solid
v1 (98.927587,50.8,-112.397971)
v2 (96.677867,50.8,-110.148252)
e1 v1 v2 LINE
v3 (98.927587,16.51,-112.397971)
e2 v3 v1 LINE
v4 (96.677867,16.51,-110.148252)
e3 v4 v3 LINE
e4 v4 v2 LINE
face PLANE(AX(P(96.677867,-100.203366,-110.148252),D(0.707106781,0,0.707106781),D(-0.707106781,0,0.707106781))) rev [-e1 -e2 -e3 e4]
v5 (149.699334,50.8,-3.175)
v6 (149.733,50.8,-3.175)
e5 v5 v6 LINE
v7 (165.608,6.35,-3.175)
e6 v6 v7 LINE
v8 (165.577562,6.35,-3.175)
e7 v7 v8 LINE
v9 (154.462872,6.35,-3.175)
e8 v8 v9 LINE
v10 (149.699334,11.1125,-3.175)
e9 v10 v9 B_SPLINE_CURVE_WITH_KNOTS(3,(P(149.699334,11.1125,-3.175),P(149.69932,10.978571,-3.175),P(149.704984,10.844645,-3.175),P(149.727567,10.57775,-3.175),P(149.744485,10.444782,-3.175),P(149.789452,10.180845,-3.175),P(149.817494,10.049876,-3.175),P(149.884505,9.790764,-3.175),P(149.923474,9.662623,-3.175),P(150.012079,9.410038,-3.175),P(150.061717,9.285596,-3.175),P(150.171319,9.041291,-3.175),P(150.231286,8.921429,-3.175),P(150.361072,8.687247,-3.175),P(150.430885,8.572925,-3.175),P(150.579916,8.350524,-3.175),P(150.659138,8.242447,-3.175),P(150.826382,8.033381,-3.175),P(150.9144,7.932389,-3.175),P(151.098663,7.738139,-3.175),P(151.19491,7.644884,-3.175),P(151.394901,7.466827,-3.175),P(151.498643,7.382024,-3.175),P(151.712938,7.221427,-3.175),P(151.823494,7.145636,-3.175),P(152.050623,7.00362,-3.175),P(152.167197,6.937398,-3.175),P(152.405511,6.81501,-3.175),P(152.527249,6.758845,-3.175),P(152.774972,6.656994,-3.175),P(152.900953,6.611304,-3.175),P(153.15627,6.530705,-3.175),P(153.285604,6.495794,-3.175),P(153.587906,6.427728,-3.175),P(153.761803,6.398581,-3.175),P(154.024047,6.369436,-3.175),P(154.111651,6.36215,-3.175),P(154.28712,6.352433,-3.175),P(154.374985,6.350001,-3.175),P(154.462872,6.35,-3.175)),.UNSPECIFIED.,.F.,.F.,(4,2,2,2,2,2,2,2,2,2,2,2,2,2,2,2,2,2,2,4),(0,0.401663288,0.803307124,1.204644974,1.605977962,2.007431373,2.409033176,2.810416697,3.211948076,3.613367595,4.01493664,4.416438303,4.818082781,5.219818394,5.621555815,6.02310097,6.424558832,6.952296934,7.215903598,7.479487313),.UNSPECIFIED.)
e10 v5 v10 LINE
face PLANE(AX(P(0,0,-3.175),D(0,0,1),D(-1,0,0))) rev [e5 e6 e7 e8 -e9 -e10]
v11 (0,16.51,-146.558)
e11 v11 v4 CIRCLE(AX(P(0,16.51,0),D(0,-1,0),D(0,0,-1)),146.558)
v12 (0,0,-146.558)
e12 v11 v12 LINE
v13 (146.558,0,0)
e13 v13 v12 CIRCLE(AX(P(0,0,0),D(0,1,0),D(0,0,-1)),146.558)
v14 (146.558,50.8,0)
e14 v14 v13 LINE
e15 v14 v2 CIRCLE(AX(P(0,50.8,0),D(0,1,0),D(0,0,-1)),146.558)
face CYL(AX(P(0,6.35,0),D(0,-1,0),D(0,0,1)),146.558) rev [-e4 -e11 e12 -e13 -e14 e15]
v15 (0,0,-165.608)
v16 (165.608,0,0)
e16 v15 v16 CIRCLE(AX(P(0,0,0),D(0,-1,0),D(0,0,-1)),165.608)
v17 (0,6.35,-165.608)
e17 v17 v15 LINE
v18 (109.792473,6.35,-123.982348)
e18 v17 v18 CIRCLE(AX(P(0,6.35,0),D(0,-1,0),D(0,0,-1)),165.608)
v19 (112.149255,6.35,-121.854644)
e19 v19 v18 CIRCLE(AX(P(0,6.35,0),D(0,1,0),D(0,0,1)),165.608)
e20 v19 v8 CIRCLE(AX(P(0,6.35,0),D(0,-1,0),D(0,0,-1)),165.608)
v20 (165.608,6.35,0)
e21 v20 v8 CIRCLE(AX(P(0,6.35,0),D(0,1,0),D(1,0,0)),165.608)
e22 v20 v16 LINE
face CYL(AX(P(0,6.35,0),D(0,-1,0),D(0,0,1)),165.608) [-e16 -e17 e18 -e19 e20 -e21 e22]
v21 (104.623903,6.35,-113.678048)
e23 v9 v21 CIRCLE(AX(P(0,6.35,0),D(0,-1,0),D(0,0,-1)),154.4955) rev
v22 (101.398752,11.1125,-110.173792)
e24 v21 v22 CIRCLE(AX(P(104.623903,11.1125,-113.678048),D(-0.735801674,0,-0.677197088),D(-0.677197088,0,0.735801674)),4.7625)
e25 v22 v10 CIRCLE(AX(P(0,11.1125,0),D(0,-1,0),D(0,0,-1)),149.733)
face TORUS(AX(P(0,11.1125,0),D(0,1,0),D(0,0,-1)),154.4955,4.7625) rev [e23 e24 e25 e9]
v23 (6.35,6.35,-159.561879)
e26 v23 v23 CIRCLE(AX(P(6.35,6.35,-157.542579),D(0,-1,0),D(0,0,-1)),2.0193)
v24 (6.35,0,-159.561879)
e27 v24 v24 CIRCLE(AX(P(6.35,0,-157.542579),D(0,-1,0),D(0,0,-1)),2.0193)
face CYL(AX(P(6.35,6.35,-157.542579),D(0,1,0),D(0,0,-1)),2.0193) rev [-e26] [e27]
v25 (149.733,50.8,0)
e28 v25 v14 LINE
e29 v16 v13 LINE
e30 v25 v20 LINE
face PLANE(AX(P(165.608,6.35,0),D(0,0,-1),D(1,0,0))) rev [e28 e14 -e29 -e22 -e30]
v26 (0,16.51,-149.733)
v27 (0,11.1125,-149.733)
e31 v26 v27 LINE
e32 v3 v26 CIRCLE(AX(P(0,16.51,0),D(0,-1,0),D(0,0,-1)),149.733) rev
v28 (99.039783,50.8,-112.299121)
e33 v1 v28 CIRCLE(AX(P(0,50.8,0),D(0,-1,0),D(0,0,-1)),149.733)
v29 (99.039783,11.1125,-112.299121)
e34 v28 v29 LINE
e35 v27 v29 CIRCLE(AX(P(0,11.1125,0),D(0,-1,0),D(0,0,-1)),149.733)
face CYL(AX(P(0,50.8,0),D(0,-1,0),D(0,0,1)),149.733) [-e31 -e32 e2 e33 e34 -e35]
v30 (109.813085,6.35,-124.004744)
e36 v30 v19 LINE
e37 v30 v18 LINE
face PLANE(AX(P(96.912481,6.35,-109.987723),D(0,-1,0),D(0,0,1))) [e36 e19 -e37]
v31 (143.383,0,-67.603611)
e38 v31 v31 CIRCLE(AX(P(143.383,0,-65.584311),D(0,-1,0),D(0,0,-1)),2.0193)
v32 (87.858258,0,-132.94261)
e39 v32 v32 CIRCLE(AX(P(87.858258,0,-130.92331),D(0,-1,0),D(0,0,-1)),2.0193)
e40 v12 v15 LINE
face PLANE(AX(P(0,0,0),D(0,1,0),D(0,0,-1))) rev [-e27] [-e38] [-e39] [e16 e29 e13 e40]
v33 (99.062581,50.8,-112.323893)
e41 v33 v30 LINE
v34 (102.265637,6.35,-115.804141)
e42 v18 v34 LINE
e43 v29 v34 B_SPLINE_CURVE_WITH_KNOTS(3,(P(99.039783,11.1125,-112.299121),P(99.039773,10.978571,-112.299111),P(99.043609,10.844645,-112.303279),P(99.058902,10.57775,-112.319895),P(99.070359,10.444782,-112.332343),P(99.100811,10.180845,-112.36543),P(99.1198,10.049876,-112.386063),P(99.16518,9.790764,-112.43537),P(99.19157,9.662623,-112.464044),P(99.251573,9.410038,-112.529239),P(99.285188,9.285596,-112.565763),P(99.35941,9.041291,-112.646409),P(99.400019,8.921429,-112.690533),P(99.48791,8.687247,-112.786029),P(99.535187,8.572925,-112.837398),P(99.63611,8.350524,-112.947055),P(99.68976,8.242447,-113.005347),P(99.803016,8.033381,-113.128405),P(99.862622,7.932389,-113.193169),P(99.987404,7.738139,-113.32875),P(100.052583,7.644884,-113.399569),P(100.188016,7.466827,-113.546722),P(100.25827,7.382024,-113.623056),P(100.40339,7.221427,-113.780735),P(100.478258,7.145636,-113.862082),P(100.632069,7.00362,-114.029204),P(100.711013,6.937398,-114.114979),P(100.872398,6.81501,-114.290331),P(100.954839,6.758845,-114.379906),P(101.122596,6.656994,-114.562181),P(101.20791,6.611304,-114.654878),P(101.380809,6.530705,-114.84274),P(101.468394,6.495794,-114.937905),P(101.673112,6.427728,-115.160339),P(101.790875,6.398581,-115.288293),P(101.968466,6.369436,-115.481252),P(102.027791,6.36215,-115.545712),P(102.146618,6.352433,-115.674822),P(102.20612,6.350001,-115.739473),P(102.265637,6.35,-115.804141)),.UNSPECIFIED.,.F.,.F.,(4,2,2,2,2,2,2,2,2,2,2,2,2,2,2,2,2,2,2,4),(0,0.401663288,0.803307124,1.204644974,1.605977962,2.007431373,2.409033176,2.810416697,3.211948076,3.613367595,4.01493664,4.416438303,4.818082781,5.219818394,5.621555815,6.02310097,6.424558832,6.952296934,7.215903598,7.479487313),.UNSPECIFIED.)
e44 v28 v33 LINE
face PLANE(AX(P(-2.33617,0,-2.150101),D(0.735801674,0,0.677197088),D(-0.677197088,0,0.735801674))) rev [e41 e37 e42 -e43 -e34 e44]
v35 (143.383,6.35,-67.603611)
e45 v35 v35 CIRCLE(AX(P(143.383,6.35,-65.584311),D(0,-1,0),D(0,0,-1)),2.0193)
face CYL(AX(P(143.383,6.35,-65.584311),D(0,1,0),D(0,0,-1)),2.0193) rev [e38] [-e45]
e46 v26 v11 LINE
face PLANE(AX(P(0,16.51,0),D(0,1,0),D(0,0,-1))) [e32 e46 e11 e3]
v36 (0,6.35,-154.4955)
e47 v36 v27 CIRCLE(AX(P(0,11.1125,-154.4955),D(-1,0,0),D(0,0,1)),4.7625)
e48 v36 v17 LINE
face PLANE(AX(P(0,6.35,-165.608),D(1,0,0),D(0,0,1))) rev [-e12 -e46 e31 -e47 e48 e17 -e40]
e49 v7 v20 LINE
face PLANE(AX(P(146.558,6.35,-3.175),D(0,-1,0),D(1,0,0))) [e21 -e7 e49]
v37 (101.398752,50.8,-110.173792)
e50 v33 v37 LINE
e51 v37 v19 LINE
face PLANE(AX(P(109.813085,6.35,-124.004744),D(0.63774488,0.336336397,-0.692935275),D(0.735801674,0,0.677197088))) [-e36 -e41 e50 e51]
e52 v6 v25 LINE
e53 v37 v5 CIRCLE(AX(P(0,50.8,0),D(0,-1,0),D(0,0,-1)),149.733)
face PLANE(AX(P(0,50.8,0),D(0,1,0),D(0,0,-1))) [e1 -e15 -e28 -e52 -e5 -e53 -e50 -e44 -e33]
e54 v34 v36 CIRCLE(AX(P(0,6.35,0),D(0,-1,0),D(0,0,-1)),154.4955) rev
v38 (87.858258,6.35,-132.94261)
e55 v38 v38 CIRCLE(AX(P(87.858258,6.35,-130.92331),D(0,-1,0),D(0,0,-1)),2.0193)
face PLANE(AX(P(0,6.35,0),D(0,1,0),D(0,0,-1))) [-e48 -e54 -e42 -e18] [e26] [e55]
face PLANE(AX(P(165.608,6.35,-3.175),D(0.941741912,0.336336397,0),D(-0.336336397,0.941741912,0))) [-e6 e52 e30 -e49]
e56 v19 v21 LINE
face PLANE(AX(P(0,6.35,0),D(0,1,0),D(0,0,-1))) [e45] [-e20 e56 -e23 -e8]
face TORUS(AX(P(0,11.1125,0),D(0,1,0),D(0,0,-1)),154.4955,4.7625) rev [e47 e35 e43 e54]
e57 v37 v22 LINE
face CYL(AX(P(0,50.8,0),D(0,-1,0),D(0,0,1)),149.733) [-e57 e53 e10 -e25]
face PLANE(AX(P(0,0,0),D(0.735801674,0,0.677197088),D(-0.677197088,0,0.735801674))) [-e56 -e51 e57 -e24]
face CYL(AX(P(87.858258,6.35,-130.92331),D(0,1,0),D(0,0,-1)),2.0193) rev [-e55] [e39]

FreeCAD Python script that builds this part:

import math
import FreeCAD as App
import Part
import Sketcher
from FreeCAD import Vector
Q = App.Units.Quantity


def edges_at(feature, points):
    """Names of the edges that pass closest to the given points."""
    edges = feature.Shape.Edges
    near = lambda p: min(range(len(edges)), key=lambda i: edges[i].distToShape(Part.Vertex(*p))[0])
    return sorted({f"Edge{near(p) + 1}" for p in points})

doc = App.newDocument("Part")
params = doc.addObject("Spreadsheet::Sheet", "Params")
for row, (alias, value) in enumerate([
    ("sketch1_radius", "5.77 in"),
    ("sketch1_radius2", "6.52 in"),
    ("pad1_length", "0.25 in"),
    ("sketch2_radius", "5.77 in"),
    ("sketch2_radius2", "5.895 in"),
    ("pad2_length", "1.75 in"),
    ("sketch3_radius", "5.77 in"),
    ("sketch3_radius2", "5.895 in"),
    ("pocket1_length", "1.35 in"),
    ("sketch4_diameter", "0.159 in"),
    ("hole_diameter", "0.159 in"),
    ("hole_depth", "0.25 in"),
    ("sketch5_width", "0.75 in"),
    ("sketch5_height", "1.75 in"),
    ("sketch5_width2", "0.125 in"),
    ("pad3_length", "0.125 in"),
    ("fillet_radius", "0.1875 in"),
], start=1):
    params.set(f"A{row}", alias)
    params.set(f"B{row}", "=" + value)
    params.setAlias(f"B{row}", alias)

body = doc.addObject("PartDesign::Body", "Body")

sketch1 = body.newObject("Sketcher::SketchObject", "Sketch")
sketch1.AttachmentSupport = (doc.getObject("XZ_Plane"), [""])
sketch1.MapMode = "FlatFace"
sketch1.addGeometry(Part.LineSegment(Vector(166, 0, 0), Vector(147, 0, 0)), False)
sketch1.addGeometry(Part.ArcOfCircle(Part.Circle(Vector(0, 0, 0), Vector(0, 0, 1), 147), math.radians(0), math.radians(90)), False)
sketch1.addGeometry(Part.LineSegment(Vector(0, 147, 0), Vector(0, 166, 0)), False)
sketch1.addGeometry(Part.ArcOfCircle(Part.Circle(Vector(0, 0, 0), Vector(0, 0, 1), 166), math.radians(0), math.radians(90)), False)
sketch1.addConstraint(Sketcher.Constraint("Coincident", 0, 2, 1, 1))
sketch1.addConstraint(Sketcher.Constraint("Coincident", 1, 2, 2, 1))
sketch1.addConstraint(Sketcher.Constraint("Coincident", 2, 2, 3, 2))
sketch1.addConstraint(Sketcher.Constraint("Coincident", 3, 1, 0, 1))
sketch1.addConstraint(Sketcher.Constraint("Horizontal", 0))
sketch1.addConstraint(Sketcher.Constraint("Vertical", 2))
sketch1.addConstraint(Sketcher.Constraint("Coincident", 1, 3, -1, 1))
sketch1.addConstraint(Sketcher.Constraint("Coincident", 3, 3, -1, 1))
sketch1.addConstraint(Sketcher.Constraint("PointOnObject", 0, 2, -1))
sketch1.addConstraint(Sketcher.Constraint("PointOnObject", 1, 2, -2))
sketch1.addConstraint(Sketcher.Constraint("Radius", 1, Q("5.77 in")))
sketch1.addConstraint(Sketcher.Constraint("Radius", 3, Q("6.52 in")))
sketch1.setExpression("Constraints[10]", "Params.sketch1_radius")
sketch1.setExpression("Constraints[11]", "Params.sketch1_radius2")
pad1 = body.newObject("PartDesign::Pad", "Pad")
pad1.Profile = sketch1
pad1.setExpression("Length", "Params.pad1_length")
pad1.Reversed = True

sketch2 = body.newObject("Sketcher::SketchObject", "Sketch001")
sketch2.AttachmentSupport = (doc.getObject("XZ_Plane"), [""])
sketch2.MapMode = "FlatFace"
sketch2.AttachmentOffset = App.Placement(Vector(0, 0, -0.25 * 25.4), App.Rotation())
sketch2.addGeometry(Part.LineSegment(Vector(149.7, 0, 0), Vector(146.6, 0, 0)), False)
sketch2.addGeometry(Part.ArcOfCircle(Part.Circle(Vector(0, 0, 0), Vector(0, 0, 1), 146.6), math.radians(0), math.radians(90)), False)
sketch2.addGeometry(Part.LineSegment(Vector(0, 146.6, 0), Vector(0, 149.7, 0)), False)
sketch2.addGeometry(Part.ArcOfCircle(Part.Circle(Vector(0, 0, 0), Vector(0, 0, 1), 149.7), math.radians(0), math.radians(90)), False)
sketch2.addConstraint(Sketcher.Constraint("Coincident", 0, 2, 1, 1))
sketch2.addConstraint(Sketcher.Constraint("Coincident", 1, 2, 2, 1))
sketch2.addConstraint(Sketcher.Constraint("Coincident", 2, 2, 3, 2))
sketch2.addConstraint(Sketcher.Constraint("Coincident", 3, 1, 0, 1))
sketch2.addConstraint(Sketcher.Constraint("Horizontal", 0))
sketch2.addConstraint(Sketcher.Constraint("Vertical", 2))
sketch2.addConstraint(Sketcher.Constraint("Coincident", 1, 3, -1, 1))
sketch2.addConstraint(Sketcher.Constraint("Coincident", 3, 3, -1, 1))
sketch2.addConstraint(Sketcher.Constraint("PointOnObject", 0, 2, -1))
sketch2.addConstraint(Sketcher.Constraint("PointOnObject", 1, 2, -2))
sketch2.addConstraint(Sketcher.Constraint("Radius", 1, Q("5.77 in")))
sketch2.addConstraint(Sketcher.Constraint("Radius", 3, Q("5.895 in")))
sketch2.setExpression("Constraints[10]", "Params.sketch2_radius")
sketch2.setExpression("Constraints[11]", "Params.sketch2_radius2")
pad2 = body.newObject("PartDesign::Pad", "Pad001")
pad2.Profile = sketch2
pad2.setExpression("Length", "Params.pad2_length")
pad2.Reversed = True

sketch3 = body.newObject("Sketcher::SketchObject", "Sketch002")
sketch3.AttachmentSupport = (doc.getObject("XZ_Plane"), [""])
sketch3.MapMode = "FlatFace"
sketch3.AttachmentOffset = App.Placement(Vector(0, 0, -2 * 25.4), App.Rotation())
sketch3.addGeometry(Part.LineSegment(Vector(98.9, 112.4, 0), Vector(96.7, 110.1, 0)), False)
sketch3.addGeometry(Part.ArcOfCircle(Part.Circle(Vector(0, 0, 0), Vector(0, 0, 1), 146.6), math.radians(49), math.radians(90)), False)
sketch3.addGeometry(Part.LineSegment(Vector(0, 146.6, 0), Vector(0, 149.7, 0)), False)
sketch3.addGeometry(Part.ArcOfCircle(Part.Circle(Vector(0, 0, 0), Vector(0, 0, 1), 149.7), math.radians(49), math.radians(90)), False)
sketch3.addConstraint(Sketcher.Constraint("Coincident", 0, 2, 1, 1))
sketch3.addConstraint(Sketcher.Constraint("Coincident", 1, 2, 2, 1))
sketch3.addConstraint(Sketcher.Constraint("Coincident", 2, 2, 3, 2))
sketch3.addConstraint(Sketcher.Constraint("Coincident", 3, 1, 0, 1))
sketch3.addConstraint(Sketcher.Constraint("Vertical", 2))
sketch3.addConstraint(Sketcher.Constraint("Coincident", 1, 3, -1, 1))
sketch3.addConstraint(Sketcher.Constraint("Coincident", 3, 3, -1, 1))
sketch3.addConstraint(Sketcher.Constraint("PointOnObject", 1, 2, -2))
sketch3.addConstraint(Sketcher.Constraint("Radius", 1, Q("5.77 in")))
sketch3.addConstraint(Sketcher.Constraint("Angle", 0, Q("-135 deg")))
sketch3.addConstraint(Sketcher.Constraint("Radius", 3, Q("5.895 in")))
sketch3.addConstraint(Sketcher.Constraint("DistanceY", -1, 1, 0, 2, 110.148252))
sketch3.setExpression("Constraints[8]", "Params.sketch3_radius")
sketch3.setExpression("Constraints[10]", "Params.sketch3_radius2")
pocket1 = body.newObject("PartDesign::Pocket", "Pocket")
pocket1.Profile = sketch3
pocket1.setExpression("Length", "Params.pocket1_length")
pocket1.Reversed = True

sketch4 = body.newObject("Sketcher::SketchObject", "Sketch003")
sketch4.AttachmentSupport = (doc.getObject("XZ_Plane"), [""])
sketch4.MapMode = "FlatFace"
sketch4.AttachmentOffset = App.Placement(Vector(0, 0, -0.25 * 25.4), App.Rotation())
sketch4.addGeometry(Part.Circle(Vector(6.3, 157.5, 0), Vector(0, 0, 1), 2), False)
sketch4.addGeometry(Part.Circle(Vector(87.9, 130.9, 0), Vector(0, 0, 1), 2), False)
sketch4.addGeometry(Part.Circle(Vector(143.4, 65.6, 0), Vector(0, 0, 1), 2), False)
sketch4.addConstraint(Sketcher.Constraint("Equal", 0, 1))
sketch4.addConstraint(Sketcher.Constraint("Equal", 1, 2))
sketch4.addConstraint(Sketcher.Constraint("Diameter", 0, Q("0.159 in")))
sketch4.addConstraint(Sketcher.Constraint("DistanceX", -1, 1, 0, 3, Q("0.25 in")))
sketch4.addConstraint(Sketcher.Constraint("DistanceX", -1, 1, 2, 3, Q("5.645 in")))
sketch4.addConstraint(Sketcher.Constraint("DistanceY", 2, 3, 1, 3, 65.338999))
sketch4.addConstraint(Sketcher.Constraint("DistanceY", -1, 1, 0, 3, 157.542579))
sketch4.addConstraint(Sketcher.Constraint("DistanceX", -1, 1, 1, 3, 87.858258))
sketch4.addConstraint(Sketcher.Constraint("DistanceY", -1, 1, 1, 3, 130.92331))
sketch4.setExpression("Constraints[2]", "Params.sketch4_diameter")
doc.recompute()
hole = body.newObject("PartDesign::Hole", "Hole")
hole.Profile = sketch4
hole.ThreadType = "None"
hole.setExpression("Diameter", "Params.hole_diameter")
hole.DepthType = "Dimension"
hole.setExpression("Depth", "Params.hole_depth")
hole.DrillPoint = "Flat"
hole.Reversed = True

sketch5 = body.newObject("Sketcher::SketchObject", "Sketch004")
sketch5.AttachmentSupport = (doc.getObject("XY_Plane"), [""])
sketch5.MapMode = "FlatFace"
sketch5.addGeometry(Part.LineSegment(Vector(149.7, 50.8, 0), Vector(165.6, 6.3, 0)), False)
sketch5.addGeometry(Part.LineSegment(Vector(165.6, 6.3, 0), Vector(146.6, 6.3, 0)), False)
sketch5.addGeometry(Part.LineSegment(Vector(146.6, 6.3, 0), Vector(146.6, 50.8, 0)), False)
sketch5.addGeometry(Part.LineSegment(Vector(146.6, 50.8, 0), Vector(149.7, 50.8, 0)), False)
sketch5.addConstraint(Sketcher.Constraint("Coincident", 0, 2, 1, 1))
sketch5.addConstraint(Sketcher.Constraint("Coincident", 1, 2, 2, 1))
sketch5.addConstraint(Sketcher.Constraint("Coincident", 2, 2, 3, 1))
sketch5.addConstraint(Sketcher.Constraint("Coincident", 3, 2, 0, 1))
sketch5.addConstraint(Sketcher.Constraint("Horizontal", 1))
sketch5.addConstraint(Sketcher.Constraint("Vertical", 2))
sketch5.addConstraint(Sketcher.Constraint("Horizontal", 3))
sketch5.addConstraint(Sketcher.Constraint("DistanceY", -1, 1, 2, 2, Q("2 in")))
sketch5.addConstraint(Sketcher.Constraint("DistanceX", 1, 2, 1, 1, Q("0.75 in")))
sketch5.addConstraint(Sketcher.Constraint("DistanceY", 2, 1, 2, 2, Q("1.75 in")))
sketch5.addConstraint(Sketcher.Constraint("DistanceX", 3, 1, 3, 2, Q("0.125 in")))
sketch5.addConstraint(Sketcher.Constraint("DistanceX", -1, 1, 0, 2, Q("6.52 in")))
sketch5.setExpression("Constraints[8]", "Params.sketch5_width")
sketch5.setExpression("Constraints[9]", "Params.sketch5_height")
sketch5.setExpression("Constraints[10]", "Params.sketch5_width2")
pad3 = body.newObject("PartDesign::Pad", "Pad002")
pad3.Profile = sketch5
pad3.setExpression("Length", "Params.pad3_length")
doc.recompute()

polarpattern = body.newObject("PartDesign::PolarPattern", "PolarPattern")
polarpattern.Originals = [pad3]
polarpattern.Axis = (doc.getObject("Y_Axis"), [""])
polarpattern.Angle = 47.375
polarpattern.Occurrences = 2
polarpattern.Reversed = True
body.Tip = polarpattern
doc.recompute()

fillet = body.newObject("PartDesign::Fillet", "Fillet")
fillet.Base = (polarpattern, edges_at(polarpattern, [(52.939, 6.35, 140.062), (136.473, 6.35, 61.605)]))
fillet.setExpression("Radius", "Params.fillet_radius")
body2 = doc.addObject("PartDesign::Body", "Body001")
doc.recompute()

mirroring = doc.addObject("Part::Mirroring", "Mirroring")
mirroring.Source = body
mirroring.Base = Vector(0, 0, 0)
mirroring.Normal = Vector(0, 0, 1)
body2.BaseFeature = mirroring
doc.recompute()
body.Visibility = False
mirroring.Visibility = False

doc.recompute()
